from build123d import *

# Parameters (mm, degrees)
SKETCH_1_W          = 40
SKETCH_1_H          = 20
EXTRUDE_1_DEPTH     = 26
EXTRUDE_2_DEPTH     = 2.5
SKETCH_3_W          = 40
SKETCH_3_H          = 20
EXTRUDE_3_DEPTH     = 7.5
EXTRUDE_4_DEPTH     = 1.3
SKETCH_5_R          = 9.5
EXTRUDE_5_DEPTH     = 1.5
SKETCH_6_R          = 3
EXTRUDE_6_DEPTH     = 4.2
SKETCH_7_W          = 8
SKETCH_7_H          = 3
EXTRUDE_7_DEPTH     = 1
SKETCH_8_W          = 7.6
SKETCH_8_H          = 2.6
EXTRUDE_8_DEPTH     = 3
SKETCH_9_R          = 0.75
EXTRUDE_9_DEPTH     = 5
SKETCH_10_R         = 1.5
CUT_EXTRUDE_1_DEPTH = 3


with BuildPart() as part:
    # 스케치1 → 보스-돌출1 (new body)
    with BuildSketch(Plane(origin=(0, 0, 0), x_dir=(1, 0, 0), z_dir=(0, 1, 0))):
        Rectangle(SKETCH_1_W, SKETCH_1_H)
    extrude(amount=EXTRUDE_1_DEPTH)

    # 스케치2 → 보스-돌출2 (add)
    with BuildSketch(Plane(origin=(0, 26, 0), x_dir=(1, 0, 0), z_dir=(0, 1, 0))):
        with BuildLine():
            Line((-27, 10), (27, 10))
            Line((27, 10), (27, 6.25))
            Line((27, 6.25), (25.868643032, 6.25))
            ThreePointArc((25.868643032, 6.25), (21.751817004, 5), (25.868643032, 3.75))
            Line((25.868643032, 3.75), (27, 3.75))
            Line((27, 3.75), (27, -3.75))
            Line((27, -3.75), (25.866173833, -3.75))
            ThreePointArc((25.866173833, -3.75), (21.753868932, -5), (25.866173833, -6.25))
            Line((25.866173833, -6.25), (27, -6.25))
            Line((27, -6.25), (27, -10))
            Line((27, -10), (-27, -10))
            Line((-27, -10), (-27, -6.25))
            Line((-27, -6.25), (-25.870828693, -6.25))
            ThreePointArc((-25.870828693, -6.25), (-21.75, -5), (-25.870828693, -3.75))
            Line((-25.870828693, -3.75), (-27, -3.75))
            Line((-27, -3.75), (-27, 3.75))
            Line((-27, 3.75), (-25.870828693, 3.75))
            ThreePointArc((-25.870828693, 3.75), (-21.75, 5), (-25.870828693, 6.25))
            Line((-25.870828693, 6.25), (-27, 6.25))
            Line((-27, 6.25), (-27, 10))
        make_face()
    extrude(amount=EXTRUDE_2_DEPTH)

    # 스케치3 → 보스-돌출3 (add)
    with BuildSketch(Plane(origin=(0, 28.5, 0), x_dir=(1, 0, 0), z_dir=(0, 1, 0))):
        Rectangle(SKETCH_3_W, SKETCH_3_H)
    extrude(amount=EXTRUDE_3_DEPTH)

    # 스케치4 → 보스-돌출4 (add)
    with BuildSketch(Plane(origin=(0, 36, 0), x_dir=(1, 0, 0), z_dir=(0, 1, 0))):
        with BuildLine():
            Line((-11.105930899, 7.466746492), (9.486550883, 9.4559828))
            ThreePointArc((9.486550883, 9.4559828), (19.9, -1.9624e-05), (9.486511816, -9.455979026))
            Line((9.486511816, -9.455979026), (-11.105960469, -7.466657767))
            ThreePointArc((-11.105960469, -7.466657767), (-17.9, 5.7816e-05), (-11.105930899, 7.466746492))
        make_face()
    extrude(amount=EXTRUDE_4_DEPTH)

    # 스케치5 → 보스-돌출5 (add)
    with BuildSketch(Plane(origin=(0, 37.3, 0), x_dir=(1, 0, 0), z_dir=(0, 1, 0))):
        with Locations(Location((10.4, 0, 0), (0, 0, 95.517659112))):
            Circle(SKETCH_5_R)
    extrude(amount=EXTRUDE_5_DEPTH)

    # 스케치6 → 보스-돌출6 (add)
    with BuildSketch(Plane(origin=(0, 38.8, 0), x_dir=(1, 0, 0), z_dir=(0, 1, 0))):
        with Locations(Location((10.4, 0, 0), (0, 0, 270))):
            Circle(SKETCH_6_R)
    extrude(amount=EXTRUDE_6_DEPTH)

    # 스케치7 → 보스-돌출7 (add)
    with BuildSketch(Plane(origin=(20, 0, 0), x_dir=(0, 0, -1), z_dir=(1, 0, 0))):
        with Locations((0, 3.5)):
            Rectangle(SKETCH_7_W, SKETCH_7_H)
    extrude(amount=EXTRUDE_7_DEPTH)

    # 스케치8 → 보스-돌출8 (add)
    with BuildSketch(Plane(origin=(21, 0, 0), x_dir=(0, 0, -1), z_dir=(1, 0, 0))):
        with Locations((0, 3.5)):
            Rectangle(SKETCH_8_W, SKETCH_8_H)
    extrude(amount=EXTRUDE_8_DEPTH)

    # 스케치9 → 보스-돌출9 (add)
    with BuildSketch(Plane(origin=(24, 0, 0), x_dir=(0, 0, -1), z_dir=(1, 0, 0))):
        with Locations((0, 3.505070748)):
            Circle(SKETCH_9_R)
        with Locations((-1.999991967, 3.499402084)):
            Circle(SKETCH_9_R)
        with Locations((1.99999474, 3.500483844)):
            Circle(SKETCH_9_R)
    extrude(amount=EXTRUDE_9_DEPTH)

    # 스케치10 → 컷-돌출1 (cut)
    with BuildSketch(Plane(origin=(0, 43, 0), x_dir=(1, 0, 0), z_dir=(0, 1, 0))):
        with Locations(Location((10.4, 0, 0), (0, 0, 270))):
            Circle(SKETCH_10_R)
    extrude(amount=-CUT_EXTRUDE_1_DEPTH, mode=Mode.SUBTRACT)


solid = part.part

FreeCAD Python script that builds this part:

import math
import FreeCAD as App
import Part
import Sketcher


def add_polygon(sketch, points):
    """Adds a closed chain of lines whose ends are joined by coincident constraints."""
    first, n = sketch.GeometryCount, len(points)
    for a, b in zip(points, points[1:] + points[:1]):
        sketch.addGeometry(Part.LineSegment(App.Vector(*a, 0), App.Vector(*b, 0)), False)
    for i in range(n):
        sketch.addConstraint(Sketcher.Constraint("Coincident", first + i, 2, first + (i + 1) % n, 1))

doc = App.newDocument("Part")
params = doc.addObject("Spreadsheet::Sheet", "Params")
for row, (alias, value) in enumerate([
    ("sketch1_width", "40 mm"),
    ("sketch1_height", "20 mm"),
    ("pad1_length", "26 mm"),
    ("sketch2_width", "54 mm"),
    ("sketch2_radius", "2.25 mm"),
    ("sketch2_height", "7.5 mm"),
    ("pad2_length", "2.5 mm"),
    ("sketch3_width", "40 mm"),
    ("sketch3_height", "20 mm"),
    ("pad3_length", "7.5 mm"),
    ("sketch4_radius", "7.5 mm"),
    ("sketch4_radius2", "9.5 mm"),
    ("pad4_length", "1.3 mm"),
    ("sketch5_diameter", "19 mm"),
    ("pad5_length", "1.5 mm"),
    ("sketch6_diameter", "6 mm"),
    ("pad6_length", "4.2 mm"),
    ("sketch7_width", "3 mm"),
    ("sketch7_height", "8 mm"),
    ("pad7_length", "1 mm"),
    ("sketch8_width", "2.6 mm"),
    ("sketch8_height", "7.6 mm"),
    ("pad8_length", "3 mm"),
    ("sketch9_diameter", "1.5 mm"),
    ("pad9_length", "5 mm"),
    ("sketch10_diameter", "3 mm"),
    ("pocket1_length", "3 mm"),
], start=1):
    params.set(f"A{row}", alias)
    params.set(f"B{row}", "=" + value)
    params.setAlias(f"B{row}", alias)

body = doc.addObject("PartDesign::Body", "Body")

# Sketch on XZ plane
sketch1 = body.newObject("Sketcher::SketchObject", "Sketch")
sketch1.AttachmentSupport = (doc.getObject("XZ_Plane"), [""])
sketch1.MapMode = "FlatFace"
add_polygon(sketch1, [(-20, -10), (-20, 10), (20, 10), (20, -10)])  # lines 0-3
sketch1.addConstraint([
    Sketcher.Constraint("Vertical", 0),
    Sketcher.Constraint("Horizontal", 1),
    Sketcher.Constraint("Vertical", 2),
    Sketcher.Constraint("Horizontal", 3),
    Sketcher.Constraint("Symmetric", 0, 2, 2, 2, -1, 1),
    Sketcher.Constraint("DistanceX", 1, 1, 1, 2, 40.0),
    Sketcher.Constraint("DistanceY", 0, 1, 0, 2, 20.0),
])
sketch1.setExpression("Constraints[9]", "Params.sketch1_width")
sketch1.setExpression("Constraints[10]", "Params.sketch1_height")
pad1 = body.newObject("PartDesign::Pad", "Pad")
pad1.Profile = sketch1
pad1.setExpression("Length", "Params.pad1_length")
pad1.Reversed = True

# Sketch on XZ plane
sketch2 = body.newObject("Sketcher::SketchObject", "Sketch001")
sketch2.AttachmentSupport = (doc.getObject("XZ_Plane"), [""])
sketch2.MapMode = "FlatFace"
sketch2.AttachmentOffset = App.Placement(App.Vector(0, 0, -26), App.Rotation())
sketch2.addGeometry([
    Part.LineSegment(App.Vector(27, -10, 0), App.Vector(-27, -10, 0)),  # 0
    Part.LineSegment(App.Vector(-27, -10, 0), App.Vector(-27, -6.2, 0)),  # 1
    Part.LineSegment(App.Vector(-27, -6.2, 0), App.Vector(-25.9, -6.2, 0)),  # 2
    Part.ArcOfCircle(Part.Circle(App.Vector(-24, -5, 0), App.Vector(0, 0, 1), 2.2), math.radians(-146), math.radians(146)),  # 3
    Part.LineSegment(App.Vector(-25.9, -3.8, 0), App.Vector(-27, -3.8, 0)),  # 4
    Part.LineSegment(App.Vector(-27, -3.8, 0), App.Vector(-27, 3.8, 0)),  # 5
    Part.LineSegment(App.Vector(-27, 3.8, 0), App.Vector(-25.9, 3.8, 0)),  # 6
    Part.ArcOfCircle(Part.Circle(App.Vector(-24, 5, 0), App.Vector(0, 0, 1), 2.2), math.radians(-146), math.radians(146)),  # 7
    Part.LineSegment(App.Vector(-25.9, 6.2, 0), App.Vector(-27, 6.2, 0)),  # 8
    Part.LineSegment(App.Vector(-27, 6.2, 0), App.Vector(-27, 10, 0)),  # 9
    Part.LineSegment(App.Vector(-27, 10, 0), App.Vector(27, 10, 0)),  # 10
    Part.LineSegment(App.Vector(27, 10, 0), App.Vector(27, 6.2, 0)),  # 11
    Part.LineSegment(App.Vector(27, 6.2, 0), App.Vector(25.9, 6.2, 0)),  # 12
    Part.ArcOfCircle(Part.Circle(App.Vector(24, 5, 0), App.Vector(0, 0, 1), 2.2), math.radians(34), math.radians(326)),  # 13
    Part.LineSegment(App.Vector(25.9, 3.8, 0), App.Vector(27, 3.8, 0)),  # 14
    Part.LineSegment(App.Vector(27, 3.8, 0), App.Vector(27, -3.8, 0)),  # 15
    Part.LineSegment(App.Vector(27, -3.8, 0), App.Vector(25.9, -3.8, 0)),  # 16
    Part.ArcOfCircle(Part.Circle(App.Vector(24, -5, 0), App.Vector(0, 0, 1), 2.2), math.radians(34), math.radians(326)),  # 17
    Part.LineSegment(App.Vector(25.9, -6.2, 0), App.Vector(27, -6.2, 0)),  # 18
    Part.LineSegment(App.Vector(27, -6.2, 0), App.Vector(27, -10, 0)),  # 19
], False)
sketch2.addConstraint([
    Sketcher.Constraint("Coincident", 0, 2, 1, 1),
    Sketcher.Constraint("Coincident", 1, 2, 2, 1),
    Sketcher.Constraint("Coincident", 2, 2, 3, 1),
    Sketcher.Constraint("Coincident", 3, 2, 4, 1),
    Sketcher.Constraint("Coincident", 4, 2, 5, 1),
    Sketcher.Constraint("Coincident", 5, 2, 6, 1),
    Sketcher.Constraint("Coincident", 6, 2, 7, 1),
    Sketcher.Constraint("Coincident", 7, 2, 8, 1),
    Sketcher.Constraint("Coincident", 8, 2, 9, 1),
    Sketcher.Constraint("Coincident", 9, 2, 10, 1),
    Sketcher.Constraint("Coincident", 10, 2, 11, 1),
    Sketcher.Constraint("Coincident", 11, 2, 12, 1),
    Sketcher.Constraint("Coincident", 12, 2, 13, 1),
    Sketcher.Constraint("Coincident", 13, 2, 14, 1),
    Sketcher.Constraint("Coincident", 14, 2, 15, 1),
    Sketcher.Constraint("Coincident", 15, 2, 16, 1),
    Sketcher.Constraint("Coincident", 16, 2, 17, 1),
    Sketcher.Constraint("Coincident", 17, 2, 18, 1),
    Sketcher.Constraint("Coincident", 18, 2, 19, 1),
    Sketcher.Constraint("Coincident", 19, 2, 0, 1),
    Sketcher.Constraint("Horizontal", 0),
    Sketcher.Constraint("Vertical", 1),
    Sketcher.Constraint("Horizontal", 2),
    Sketcher.Constraint("Horizontal", 4),
    Sketcher.Constraint("Vertical", 5),
    Sketcher.Constraint("Horizontal", 6),
    Sketcher.Constraint("Horizontal", 8),
    Sketcher.Constraint("Vertical", 9),
    Sketcher.Constraint("Horizontal", 10),
    Sketcher.Constraint("Vertical", 11),
    Sketcher.Constraint("Horizontal", 12),
    Sketcher.Constraint("Horizontal", 14),
    Sketcher.Constraint("Vertical", 15),
    Sketcher.Constraint("Horizontal", 16),
    Sketcher.Constraint("Horizontal", 18),
    Sketcher.Constraint("Vertical", 19),
    Sketcher.Constraint("Equal", 3, 7),
    Sketcher.Constraint("Symmetric", 3, 3, 13, 3, -1, 1),
    Sketcher.Constraint("Symmetric", 7, 3, 17, 3, -1, 1),
    Sketcher.Constraint("Symmetric", 0, 2, 10, 2, -1, 1),
    Sketcher.Constraint("Symmetric", 4, 2, 14, 2, -1, 1),
    Sketcher.Constraint("Symmetric", 8, 2, 18, 2, -1, 1),
    Sketcher.Constraint("Symmetric", 7, 3, 13, 3, -2),
    Sketcher.Constraint("Symmetric", 8, 2, 11, 2, -2),
    Sketcher.Constraint("Horizontal", 6, 2, 13, 2),
    Sketcher.Constraint("Horizontal", 4, 2, 15, 2),
    Sketcher.Constraint("Horizontal", 2, 2, 17, 2),
    Sketcher.Constraint("Vertical", 2, 2, 3, 2),
    Sketcher.Constraint("Vertical", 1, 2, 4, 2),
    Sketcher.Constraint("DistanceX", 0, 2, 0, 1, 54.0),
    Sketcher.Constraint("Radius", 3, 2.25),
    Sketcher.Constraint("DistanceY", 5, 1, 5, 2, 7.5),
    Sketcher.Constraint("DistanceX", 3, 3, -1, 1, 24.0),
    Sketcher.Constraint("DistanceY", 3, 3, -1, 1, 5.0),
    Sketcher.Constraint("DistanceY", 0, 2, -1, 1, 10.0),
    Sketcher.Constraint("Radius", 13, 2.246131),
    Sketcher.Constraint("Radius", 17, 2.248183),
])
sketch2.setExpression("Constraints[49]", "Params.sketch2_width")
sketch2.setExpression("Constraints[50]", "Params.sketch2_radius")
sketch2.setExpression("Constraints[51]", "Params.sketch2_height")
pad2 = body.newObject("PartDesign::Pad", "Pad001")
pad2.Profile = sketch2
pad2.setExpression("Length", "Params.pad2_length")
pad2.Reversed = True

# Sketch on XZ plane
sketch3 = body.newObject("Sketcher::SketchObject", "Sketch002")
sketch3.AttachmentSupport = (doc.getObject("XZ_Plane"), [""])
sketch3.MapMode = "FlatFace"
sketch3.AttachmentOffset = App.Placement(App.Vector(0, 0, -28.5), App.Rotation())
add_polygon(sketch3, [(-20, -10), (-20, 10), (20, 10), (20, -10)])  # lines 0-3
sketch3.addConstraint([
    Sketcher.Constraint("Vertical", 0),
    Sketcher.Constraint("Horizontal", 1),
    Sketcher.Constraint("Vertical", 2),
    Sketcher.Constraint("Horizontal", 3),
    Sketcher.Constraint("Symmetric", 0, 2, 2, 2, -1, 1),
    Sketcher.Constraint("DistanceX", 1, 1, 1, 2, 40.0),
    Sketcher.Constraint("DistanceY", 0, 1, 0, 2, 20.0),
])
sketch3.setExpression("Constraints[9]", "Params.sketch3_width")
sketch3.setExpression("Constraints[10]", "Params.sketch3_height")
pad3 = body.newObject("PartDesign::Pad", "Pad002")
pad3.Profile = sketch3
pad3.setExpression("Length", "Params.pad3_length")
pad3.Reversed = True

# Sketch on XZ plane
sketch4 = body.newObject("Sketcher::SketchObject", "Sketch003")
sketch4.AttachmentSupport = (doc.getObject("XZ_Plane"), [""])
sketch4.MapMode = "FlatFace"
sketch4.AttachmentOffset = App.Placement(App.Vector(0, 0, -36), App.Rotation())
sketch4.addGeometry([
    Part.LineSegment(App.Vector(9, -9, 0), App.Vector(-11, -7, 0)),
    Part.ArcOfCircle(Part.Circle(App.Vector(-10, 0, 0), App.Vector(0, 0, 1), 8), math.radians(95), math.radians(265)),
    Part.LineSegment(App.Vector(-11, 7, 0), App.Vector(9, 9, 0)),
    Part.ArcOfCircle(Part.Circle(App.Vector(10, 0, 0), App.Vector(0, 0, 1), 10), math.radians(-96), math.radians(96)),
], False)
sketch4.addConstraint([
    Sketcher.Constraint("Coincident", 0, 2, 1, 2),
    Sketcher.Constraint("Coincident", 1, 1, 2, 1),
    Sketcher.Constraint("Tangent", 2, 2, 3, 2),
    Sketcher.Constraint("Tangent", 3, 1, 0, 1),
    Sketcher.Constraint("PointOnObject", 3, 3, -1),
    Sketcher.Constraint("Equal", 0, 2),
    Sketcher.Constraint("Radius", 1, 7.5),
    Sketcher.Constraint("Radius", 3, 9.5),
    Sketcher.Constraint("DistanceX", 1, 3, -1, 1, 10.4),
    Sketcher.Constraint("DistanceX", -1, 1, 3, 3, 10.4),
    Sketcher.Constraint("DistanceY", 1, 3, 1, 1, 7.466701),
    Sketcher.Constraint("Distance", 0, 20.688339),
])
sketch4.setExpression("Constraints[6]", "Params.sketch4_radius")
sketch4.setExpression("Constraints[7]", "Params.sketch4_radius2")
pad4 = body.newObject("PartDesign::Pad", "Pad003")
pad4.Profile = sketch4
pad4.setExpression("Length", "Params.pad4_length")
pad4.Reversed = True

# Sketch on XZ plane
sketch5 = body.newObject("Sketcher::SketchObject", "Sketch004")
sketch5.AttachmentSupport = (doc.getObject("XZ_Plane"), [""])
sketch5.MapMode = "FlatFace"
sketch5.AttachmentOffset = App.Placement(App.Vector(0, 0, -37.3), App.Rotation())
sketch5.addGeometry(Part.Circle(App.Vector(10, 0, 0), App.Vector(0, 0, 1), 10), False)
sketch5.addConstraint([
    Sketcher.Constraint("PointOnObject", 0, 3, -1),
    Sketcher.Constraint("Diameter", 0, 19.0),
    Sketcher.Constraint("DistanceX", -1, 1, 0, 3, 10.4),
])
sketch5.setExpression("Constraints[1]", "Params.sketch5_diameter")
pad5 = body.newObject("PartDesign::Pad", "Pad004")
pad5.Profile = sketch5
pad5.setExpression("Length", "Params.pad5_length")
pad5.Reversed = True

# Sketch on XZ plane
sketch6 = body.newObject("Sketcher::SketchObject", "Sketch005")
sketch6.AttachmentSupport = (doc.getObject("XZ_Plane"), [""])
sketch6.MapMode = "FlatFace"
sketch6.AttachmentOffset = App.Placement(App.Vector(0, 0, -38.8), App.Rotation())
sketch6.addGeometry(Part.Circle(App.Vector(10.4, 0, 0), App.Vector(0, 0, 1), 3), False)
sketch6.addConstraint([
    Sketcher.Constraint("PointOnObject", 0, 3, -1),
    Sketcher.Constraint("Diameter", 0, 6.0),
    Sketcher.Constraint("DistanceX", -1, 1, 0, 3, 10.4),
])
sketch6.setExpression("Constraints[1]", "Params.sketch6_diameter")
pad6 = body.newObject("PartDesign::Pad", "Pad005")
pad6.Profile = sketch6
pad6.setExpression("Length", "Params.pad6_length")
pad6.Reversed = True

# Sketch on YZ plane
sketch7 = body.newObject("Sketcher::SketchObject", "Sketch006")
sketch7.AttachmentSupport = (doc.getObject("YZ_Plane"), [""])
sketch7.MapMode = "FlatFace"
sketch7.AttachmentOffset = App.Placement(App.Vector(0, 0, 20), App.Rotation())
add_polygon(sketch7, [(5, 4), (2, 4), (2, -4), (5, -4)])  # lines 0-3
sketch7.addConstraint([
    Sketcher.Constraint("Horizontal", 0),
    Sketcher.Constraint("Vertical", 1),
    Sketcher.Constraint("Horizontal", 2),
    Sketcher.Constraint("Vertical", 3),
    Sketcher.Constraint("DistanceX", 0, 2, 0, 1, 3.0),
    Sketcher.Constraint("DistanceY", 1, 2, 1, 1, 8.0),
    Sketcher.Constraint("DistanceX", -1, 1, 0, 2, 2.0),
    Sketcher.Constraint("DistanceY", -1, 1, 0, 2, 4.0),
])
sketch7.setExpression("Constraints[8]", "Params.sketch7_width")
sketch7.setExpression("Constraints[9]", "Params.sketch7_height")
pad7 = body.newObject("PartDesign::Pad", "Pad006")
pad7.Profile = sketch7
pad7.setExpression("Length", "Params.pad7_length")

# Sketch on YZ plane
sketch8 = body.newObject("Sketcher::SketchObject", "Sketch007")
sketch8.AttachmentSupport = (doc.getObject("YZ_Plane"), [""])
sketch8.MapMode = "FlatFace"
sketch8.AttachmentOffset = App.Placement(App.Vector(0, 0, 21), App.Rotation())
add_polygon(sketch8, [(4.8, 3.8), (2.2, 3.8), (2.2, -3.8), (4.8, -3.8)])  # lines 0-3
sketch8.addConstraint([
    Sketcher.Constraint("Horizontal", 0),
    Sketcher.Constraint("Vertical", 1),
    Sketcher.Constraint("Horizontal", 2),
    Sketcher.Constraint("Vertical", 3),
    Sketcher.Constraint("DistanceX", 0, 2, 0, 1, 2.6),
    Sketcher.Constraint("DistanceY", 1, 2, 1, 1, 7.6),
    Sketcher.Constraint("DistanceX", -1, 1, 0, 2, 2.2),
    Sketcher.Constraint("DistanceY", -1, 1, 0, 2, 3.8),
])
sketch8.setExpression("Constraints[8]", "Params.sketch8_width")
sketch8.setExpression("Constraints[9]", "Params.sketch8_height")
pad8 = body.newObject("PartDesign::Pad", "Pad007")
pad8.Profile = sketch8
pad8.setExpression("Length", "Params.pad8_length")

# Sketch on YZ plane
sketch9 = body.newObject("Sketcher::SketchObject", "Sketch008")
sketch9.AttachmentSupport = (doc.getObject("YZ_Plane"), [""])
sketch9.MapMode = "FlatFace"
sketch9.AttachmentOffset = App.Placement(App.Vector(0, 0, 24), App.Rotation())
sketch9.addGeometry([
    Part.Circle(App.Vector(3.5, 0, 0), App.Vector(0, 0, 1), 0.8),
    Part.Circle(App.Vector(3.5, 2, 0), App.Vector(0, 0, 1), 0.8),
    Part.Circle(App.Vector(3.5, -2, 0), App.Vector(0, 0, 1), 0.8),
], False)
sketch9.addConstraint([
    Sketcher.Constraint("Equal", 0, 1),
    Sketcher.Constraint("Equal", 1, 2),
    Sketcher.Constraint("PointOnObject", 0, 3, -1),
    Sketcher.Constraint("Diameter", 0, 1.5),
    Sketcher.Constraint("DistanceX", -1, 1, 0, 3, 3.505071),
    Sketcher.Constraint("DistanceY", -1, 1, 1, 3, 1.999992),
    Sketcher.Constraint("DistanceX", 1, 3, 0, 3, 0.005669),
    Sketcher.Constraint("DistanceX", 1, 3, 2, 3, 0.001082),
    Sketcher.Constraint("DistanceY", 2, 3, -1, 1, 1.999995),
])
sketch9.setExpression("Constraints[3]", "Params.sketch9_diameter")
pad9 = body.newObject("PartDesign::Pad", "Pad008")
pad9.Profile = sketch9
pad9.setExpression("Length", "Params.pad9_length")

# Sketch on XZ plane
sketch10 = body.newObject("Sketcher::SketchObject", "Sketch009")
sketch10.AttachmentSupport = (doc.getObject("XZ_Plane"), [""])
sketch10.MapMode = "FlatFace"
sketch10.AttachmentOffset = App.Placement(App.Vector(0, 0, -43), App.Rotation())
sketch10.addGeometry(Part.Circle(App.Vector(10.4, 0, 0), App.Vector(0, 0, 1), 1.5), False)
sketch10.addConstraint([
    Sketcher.Constraint("PointOnObject", 0, 3, -1),
    Sketcher.Constraint("Diameter", 0, 3.0),
    Sketcher.Constraint("DistanceX", -1, 1, 0, 3, 10.4),
])
sketch10.setExpression("Constraints[1]", "Params.sketch10_diameter")
pocket1 = body.newObject("PartDesign::Pocket", "Pocket")
pocket1.Profile = sketch10
pocket1.setExpression("Length", "Params.pocket1_length")
pocket1.Reversed = True

doc.recompute()
